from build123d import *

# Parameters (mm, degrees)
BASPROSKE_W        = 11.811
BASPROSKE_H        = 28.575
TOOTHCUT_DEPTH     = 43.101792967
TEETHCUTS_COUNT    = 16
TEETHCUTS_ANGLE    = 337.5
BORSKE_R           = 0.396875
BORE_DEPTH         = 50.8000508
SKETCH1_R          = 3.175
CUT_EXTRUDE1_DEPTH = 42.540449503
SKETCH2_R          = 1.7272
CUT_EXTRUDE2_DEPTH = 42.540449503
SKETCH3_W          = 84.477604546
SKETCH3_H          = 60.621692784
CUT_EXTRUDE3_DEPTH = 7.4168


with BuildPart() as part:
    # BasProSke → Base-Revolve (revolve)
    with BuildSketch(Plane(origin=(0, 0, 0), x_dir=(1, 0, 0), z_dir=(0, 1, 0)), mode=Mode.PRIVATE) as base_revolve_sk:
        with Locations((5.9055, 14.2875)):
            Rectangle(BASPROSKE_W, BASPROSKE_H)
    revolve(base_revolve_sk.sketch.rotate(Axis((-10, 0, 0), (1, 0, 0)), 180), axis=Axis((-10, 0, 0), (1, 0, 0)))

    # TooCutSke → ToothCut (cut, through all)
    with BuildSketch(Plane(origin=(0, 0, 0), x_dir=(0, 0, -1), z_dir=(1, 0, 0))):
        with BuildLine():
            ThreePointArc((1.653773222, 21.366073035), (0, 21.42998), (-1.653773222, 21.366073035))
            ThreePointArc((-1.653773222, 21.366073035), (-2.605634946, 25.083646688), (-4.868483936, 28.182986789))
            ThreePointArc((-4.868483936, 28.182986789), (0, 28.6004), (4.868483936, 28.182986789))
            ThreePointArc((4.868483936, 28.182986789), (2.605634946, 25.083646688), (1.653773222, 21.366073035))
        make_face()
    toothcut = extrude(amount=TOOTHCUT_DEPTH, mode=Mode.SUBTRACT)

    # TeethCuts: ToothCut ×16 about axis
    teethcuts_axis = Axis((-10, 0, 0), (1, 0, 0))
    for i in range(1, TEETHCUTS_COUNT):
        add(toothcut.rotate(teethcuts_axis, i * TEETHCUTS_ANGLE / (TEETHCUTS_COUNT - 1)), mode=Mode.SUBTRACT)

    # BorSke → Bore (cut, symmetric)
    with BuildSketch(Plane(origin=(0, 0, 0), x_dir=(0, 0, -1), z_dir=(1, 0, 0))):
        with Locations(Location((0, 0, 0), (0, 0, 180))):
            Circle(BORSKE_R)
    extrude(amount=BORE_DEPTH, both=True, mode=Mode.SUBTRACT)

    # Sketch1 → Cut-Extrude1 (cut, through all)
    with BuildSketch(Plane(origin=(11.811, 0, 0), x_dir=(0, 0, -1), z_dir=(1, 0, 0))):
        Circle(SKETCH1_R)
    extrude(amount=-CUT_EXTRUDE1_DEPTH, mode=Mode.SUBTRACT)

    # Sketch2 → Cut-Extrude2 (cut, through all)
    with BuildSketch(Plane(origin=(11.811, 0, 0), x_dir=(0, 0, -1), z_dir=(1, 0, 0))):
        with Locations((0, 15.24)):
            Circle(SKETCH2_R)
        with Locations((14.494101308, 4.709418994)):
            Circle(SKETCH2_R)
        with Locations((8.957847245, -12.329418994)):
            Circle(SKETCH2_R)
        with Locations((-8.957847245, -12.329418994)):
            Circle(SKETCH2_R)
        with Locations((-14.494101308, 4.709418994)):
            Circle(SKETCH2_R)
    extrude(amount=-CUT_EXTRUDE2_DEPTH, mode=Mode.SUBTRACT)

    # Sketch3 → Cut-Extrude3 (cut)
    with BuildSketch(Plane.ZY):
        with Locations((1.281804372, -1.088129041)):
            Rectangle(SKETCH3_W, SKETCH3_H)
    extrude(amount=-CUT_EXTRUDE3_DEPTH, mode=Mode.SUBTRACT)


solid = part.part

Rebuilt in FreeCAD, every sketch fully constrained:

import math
import FreeCAD as App
import Part
import Sketcher
Q = App.Units.Quantity


def add_polygon(sketch, points):
    """Adds a closed chain of lines whose ends are joined by coincident constraints."""
    first, n = sketch.GeometryCount, len(points)
    for a, b in zip(points, points[1:] + points[:1]):
        sketch.addGeometry(Part.LineSegment(App.Vector(*a, 0), App.Vector(*b, 0)), False)
    for i in range(n):
        sketch.addConstraint(Sketcher.Constraint("Coincident", first + i, 2, first + (i + 1) % n, 1))

doc = App.newDocument("Part")
body = doc.addObject("PartDesign::Body", "Body")

sketch1 = doc.addObject("Sketcher::SketchObject", "Sketch")
body.addObject(sketch1)
sketch1.AttachmentSupport = (doc.XZ_Plane, [""])
sketch1.MapMode = "FlatFace"
add_polygon(sketch1, [(0, -29), (0, 0), (12, 0), (12, -29)])
sketch1.addConstraint(Sketcher.Constraint("Vertical", 0))
sketch1.addConstraint(Sketcher.Constraint("Horizontal", 1))
sketch1.addConstraint(Sketcher.Constraint("Vertical", 2))
sketch1.addConstraint(Sketcher.Constraint("Horizontal", 3))
sketch1.addConstraint(Sketcher.Constraint("Coincident", 0, 2, -1, 1))
sketch1.addConstraint(Sketcher.Constraint("DistanceX", 1, 1, 1, 2, Q("0.465 in")))
sketch1.addConstraint(Sketcher.Constraint("DistanceY", 0, 1, 0, 2, Q("1.125 in")))
revolution = doc.addObject("PartDesign::Revolution", "Revolution")
body.addObject(revolution)
revolution.Profile = sketch1
revolution.ReferenceAxis = (sketch1, ["H_Axis"])
revolution.Angle = 360

sketch2 = doc.addObject("Sketcher::SketchObject", "Sketch001")
body.addObject(sketch2)
sketch2.AttachmentSupport = (doc.YZ_Plane, [""])
sketch2.MapMode = "FlatFace"
sketch2.addGeometry(Part.ArcOfCircle(Part.Circle(App.Vector(0, 0, 0), App.Vector(0, 0, 1), 21.4), math.radians(-4.43), math.radians(4.43)), False)
sketch2.addGeometry(Part.ArcOfCircle(Part.Circle(App.Vector(20.8, -11.8, 0), App.Vector(0, 0, 1), 10.2), math.radians(43), math.radians(87)), False)
sketch2.addGeometry(Part.ArcOfCircle(Part.Circle(App.Vector(0, 0, 0), App.Vector(0, 0, 1), 28.6), math.radians(-9.8), math.radians(9.8)), False)
sketch2.addGeometry(Part.ArcOfCircle(Part.Circle(App.Vector(20.8, 11.8, 0), App.Vector(0, 0, 1), 10.2), math.radians(-87), math.radians(-43)), False)
sketch2.addConstraint(Sketcher.Constraint("Coincident", 0, 1, 1, 2))
sketch2.addConstraint(Sketcher.Constraint("Coincident", 1, 1, 2, 1))
sketch2.addConstraint(Sketcher.Constraint("Coincident", 2, 2, 3, 2))
sketch2.addConstraint(Sketcher.Constraint("Coincident", 3, 1, 0, 2))
sketch2.addConstraint(Sketcher.Constraint("Coincident", 0, 3, -1, 1))
sketch2.addConstraint(Sketcher.Constraint("Coincident", 2, 3, -1, 1))
sketch2.addConstraint(Sketcher.Constraint("Equal", 1, 3))
sketch2.addConstraint(Sketcher.Constraint("Symmetric", 1, 3, 3, 3, -1))
sketch2.addConstraint(Sketcher.Constraint("Radius", 1, Q("0.4 in")))
sketch2.addConstraint(Sketcher.Constraint("Radius", 2, Q("1.126 in")))
sketch2.addConstraint(Sketcher.Constraint("Radius", 0, Q("0.8437 in")))
sketch2.addConstraint(Sketcher.Constraint("DistanceX", -1, 1, 1, 3, Q("20.750099 mm")))
sketch2.addConstraint(Sketcher.Constraint("DistanceY", 1, 3, 1, 1, Q("6.9266 mm")))
pocket1 = doc.addObject("PartDesign::Pocket", "Pocket")
body.addObject(pocket1)
pocket1.Profile = sketch2
pocket1.Type = "ThroughAll"
pocket1.Reversed = True
doc.recompute()

polarpattern = doc.addObject("PartDesign::PolarPattern", "PolarPattern")
body.addObject(polarpattern)
polarpattern.Originals = [pocket1]
polarpattern.Axis = (doc.X_Axis, [""])
polarpattern.Angle = 360
polarpattern.Occurrences = 16
body.Tip = polarpattern

sketch3 = doc.addObject("Sketcher::SketchObject", "Sketch002")
body.addObject(sketch3)
sketch3.AttachmentSupport = (doc.YZ_Plane, [""])
sketch3.MapMode = "FlatFace"
sketch3.addGeometry(Part.Circle(App.Vector(0, 0, 0), App.Vector(0, 0, 1), 0.4), False)
sketch3.addConstraint(Sketcher.Constraint("Coincident", 0, 3, -1, 1))
sketch3.addConstraint(Sketcher.Constraint("Diameter", 0, Q("0.03125 in")))
pocket2 = doc.addObject("PartDesign::Pocket", "Pocket001")
body.addObject(pocket2)
pocket2.Profile = sketch3
pocket2.Length = 101.600102
pocket2.Midplane = True

sketch4 = doc.addObject("Sketcher::SketchObject", "Sketch003")
body.addObject(sketch4)
sketch4.AttachmentSupport = (doc.YZ_Plane, [""])
sketch4.MapMode = "FlatFace"
sketch4.AttachmentOffset = App.Placement(App.Vector(0, 0, 0.465 * 25.4), App.Rotation())
sketch4.addGeometry(Part.Circle(App.Vector(0, 0, 0), App.Vector(0, 0, 1), 3.2), False)
sketch4.addConstraint(Sketcher.Constraint("Coincident", 0, 3, -1, 1))
sketch4.addConstraint(Sketcher.Constraint("Diameter", 0, Q("0.25 in")))
pocket3 = doc.addObject("PartDesign::Pocket", "Pocket002")
body.addObject(pocket3)
pocket3.Profile = sketch4
pocket3.Type = "ThroughAll"

sketch5 = doc.addObject("Sketcher::SketchObject", "Sketch004")
body.addObject(sketch5)
sketch5.AttachmentSupport = (doc.YZ_Plane, [""])
sketch5.MapMode = "FlatFace"
sketch5.AttachmentOffset = App.Placement(App.Vector(0, 0, 0.465 * 25.4), App.Rotation())
sketch5.addGeometry(Part.Circle(App.Vector(15.2, 0, 0), App.Vector(0, 0, 1), 1.7), False)
sketch5.addGeometry(Part.Circle(App.Vector(4.7, -14.5, 0), App.Vector(0, 0, 1), 1.7), False)
sketch5.addGeometry(Part.Circle(App.Vector(-12.3, -9, 0), App.Vector(0, 0, 1), 1.7), False)
sketch5.addGeometry(Part.Circle(App.Vector(-12.3, 9, 0), App.Vector(0, 0, 1), 1.7), False)
sketch5.addGeometry(Part.Circle(App.Vector(4.7, 14.5, 0), App.Vector(0, 0, 1), 1.7), False)
sketch5.addConstraint(Sketcher.Constraint("Equal", 0, 1))
sketch5.addConstraint(Sketcher.Constraint("Equal", 1, 2))
sketch5.addConstraint(Sketcher.Constraint("Equal", 2, 3))
sketch5.addConstraint(Sketcher.Constraint("Equal", 3, 4))
sketch5.addConstraint(Sketcher.Constraint("Symmetric", 2, 3, 3, 3, -1))
sketch5.addConstraint(Sketcher.Constraint("Symmetric", 1, 3, 4, 3, -1))
sketch5.addConstraint(Sketcher.Constraint("PointOnObject", 0, 3, -1))
sketch5.addConstraint(Sketcher.Constraint("Diameter", 0, Q("0.136 in")))
sketch5.addConstraint(Sketcher.Constraint("DistanceX", -1, 1, 0, 3, Q("0.6 in")))
sketch5.addConstraint(Sketcher.Constraint("DistanceY", 1, 3, -1, 1, Q("14.494101 mm")))
sketch5.addConstraint(Sketcher.Constraint("DistanceX", -1, 1, 1, 3, Q("4.709419 mm")))
sketch5.addConstraint(Sketcher.Constraint("DistanceX", 2, 3, -1, 1, Q("12.329419 mm")))
sketch5.addConstraint(Sketcher.Constraint("DistanceY", 1, 3, 3, 3, Q("23.451949 mm")))
pocket4 = doc.addObject("PartDesign::Pocket", "Pocket003")
body.addObject(pocket4)
pocket4.Profile = sketch5
pocket4.Type = "ThroughAll"

sketch6 = doc.addObject("Sketcher::SketchObject", "Sketch005")
body.addObject(sketch6)
sketch6.AttachmentSupport = (doc.YZ_Plane, [""])
sketch6.MapMode = "FlatFace"
add_polygon(sketch6, [(29, -41), (-31, -41), (-31, 44), (29, 44)])
sketch6.addConstraint(Sketcher.Constraint("Horizontal", 0))
sketch6.addConstraint(Sketcher.Constraint("Vertical", 1))
sketch6.addConstraint(Sketcher.Constraint("Horizontal", 2))
sketch6.addConstraint(Sketcher.Constraint("Vertical", 3))
sketch6.addConstraint(Sketcher.Constraint("DistanceX", 0, 2, 0, 1, Q("60.621693 mm")))
sketch6.addConstraint(Sketcher.Constraint("DistanceY", 1, 1, 1, 2, Q("84.477605 mm")))
sketch6.addConstraint(Sketcher.Constraint("DistanceX", 0, 2, -1, 1, Q("31.398975 mm")))
sketch6.addConstraint(Sketcher.Constraint("DistanceY", 0, 2, -1, 1, Q("40.956998 mm")))
pocket5 = doc.addObject("PartDesign::Pocket", "Pocket004")
body.addObject(pocket5)
pocket5.Profile = sketch6
pocket5.Length = Q("0.292 in")
pocket5.Reversed = True

doc.recompute()
